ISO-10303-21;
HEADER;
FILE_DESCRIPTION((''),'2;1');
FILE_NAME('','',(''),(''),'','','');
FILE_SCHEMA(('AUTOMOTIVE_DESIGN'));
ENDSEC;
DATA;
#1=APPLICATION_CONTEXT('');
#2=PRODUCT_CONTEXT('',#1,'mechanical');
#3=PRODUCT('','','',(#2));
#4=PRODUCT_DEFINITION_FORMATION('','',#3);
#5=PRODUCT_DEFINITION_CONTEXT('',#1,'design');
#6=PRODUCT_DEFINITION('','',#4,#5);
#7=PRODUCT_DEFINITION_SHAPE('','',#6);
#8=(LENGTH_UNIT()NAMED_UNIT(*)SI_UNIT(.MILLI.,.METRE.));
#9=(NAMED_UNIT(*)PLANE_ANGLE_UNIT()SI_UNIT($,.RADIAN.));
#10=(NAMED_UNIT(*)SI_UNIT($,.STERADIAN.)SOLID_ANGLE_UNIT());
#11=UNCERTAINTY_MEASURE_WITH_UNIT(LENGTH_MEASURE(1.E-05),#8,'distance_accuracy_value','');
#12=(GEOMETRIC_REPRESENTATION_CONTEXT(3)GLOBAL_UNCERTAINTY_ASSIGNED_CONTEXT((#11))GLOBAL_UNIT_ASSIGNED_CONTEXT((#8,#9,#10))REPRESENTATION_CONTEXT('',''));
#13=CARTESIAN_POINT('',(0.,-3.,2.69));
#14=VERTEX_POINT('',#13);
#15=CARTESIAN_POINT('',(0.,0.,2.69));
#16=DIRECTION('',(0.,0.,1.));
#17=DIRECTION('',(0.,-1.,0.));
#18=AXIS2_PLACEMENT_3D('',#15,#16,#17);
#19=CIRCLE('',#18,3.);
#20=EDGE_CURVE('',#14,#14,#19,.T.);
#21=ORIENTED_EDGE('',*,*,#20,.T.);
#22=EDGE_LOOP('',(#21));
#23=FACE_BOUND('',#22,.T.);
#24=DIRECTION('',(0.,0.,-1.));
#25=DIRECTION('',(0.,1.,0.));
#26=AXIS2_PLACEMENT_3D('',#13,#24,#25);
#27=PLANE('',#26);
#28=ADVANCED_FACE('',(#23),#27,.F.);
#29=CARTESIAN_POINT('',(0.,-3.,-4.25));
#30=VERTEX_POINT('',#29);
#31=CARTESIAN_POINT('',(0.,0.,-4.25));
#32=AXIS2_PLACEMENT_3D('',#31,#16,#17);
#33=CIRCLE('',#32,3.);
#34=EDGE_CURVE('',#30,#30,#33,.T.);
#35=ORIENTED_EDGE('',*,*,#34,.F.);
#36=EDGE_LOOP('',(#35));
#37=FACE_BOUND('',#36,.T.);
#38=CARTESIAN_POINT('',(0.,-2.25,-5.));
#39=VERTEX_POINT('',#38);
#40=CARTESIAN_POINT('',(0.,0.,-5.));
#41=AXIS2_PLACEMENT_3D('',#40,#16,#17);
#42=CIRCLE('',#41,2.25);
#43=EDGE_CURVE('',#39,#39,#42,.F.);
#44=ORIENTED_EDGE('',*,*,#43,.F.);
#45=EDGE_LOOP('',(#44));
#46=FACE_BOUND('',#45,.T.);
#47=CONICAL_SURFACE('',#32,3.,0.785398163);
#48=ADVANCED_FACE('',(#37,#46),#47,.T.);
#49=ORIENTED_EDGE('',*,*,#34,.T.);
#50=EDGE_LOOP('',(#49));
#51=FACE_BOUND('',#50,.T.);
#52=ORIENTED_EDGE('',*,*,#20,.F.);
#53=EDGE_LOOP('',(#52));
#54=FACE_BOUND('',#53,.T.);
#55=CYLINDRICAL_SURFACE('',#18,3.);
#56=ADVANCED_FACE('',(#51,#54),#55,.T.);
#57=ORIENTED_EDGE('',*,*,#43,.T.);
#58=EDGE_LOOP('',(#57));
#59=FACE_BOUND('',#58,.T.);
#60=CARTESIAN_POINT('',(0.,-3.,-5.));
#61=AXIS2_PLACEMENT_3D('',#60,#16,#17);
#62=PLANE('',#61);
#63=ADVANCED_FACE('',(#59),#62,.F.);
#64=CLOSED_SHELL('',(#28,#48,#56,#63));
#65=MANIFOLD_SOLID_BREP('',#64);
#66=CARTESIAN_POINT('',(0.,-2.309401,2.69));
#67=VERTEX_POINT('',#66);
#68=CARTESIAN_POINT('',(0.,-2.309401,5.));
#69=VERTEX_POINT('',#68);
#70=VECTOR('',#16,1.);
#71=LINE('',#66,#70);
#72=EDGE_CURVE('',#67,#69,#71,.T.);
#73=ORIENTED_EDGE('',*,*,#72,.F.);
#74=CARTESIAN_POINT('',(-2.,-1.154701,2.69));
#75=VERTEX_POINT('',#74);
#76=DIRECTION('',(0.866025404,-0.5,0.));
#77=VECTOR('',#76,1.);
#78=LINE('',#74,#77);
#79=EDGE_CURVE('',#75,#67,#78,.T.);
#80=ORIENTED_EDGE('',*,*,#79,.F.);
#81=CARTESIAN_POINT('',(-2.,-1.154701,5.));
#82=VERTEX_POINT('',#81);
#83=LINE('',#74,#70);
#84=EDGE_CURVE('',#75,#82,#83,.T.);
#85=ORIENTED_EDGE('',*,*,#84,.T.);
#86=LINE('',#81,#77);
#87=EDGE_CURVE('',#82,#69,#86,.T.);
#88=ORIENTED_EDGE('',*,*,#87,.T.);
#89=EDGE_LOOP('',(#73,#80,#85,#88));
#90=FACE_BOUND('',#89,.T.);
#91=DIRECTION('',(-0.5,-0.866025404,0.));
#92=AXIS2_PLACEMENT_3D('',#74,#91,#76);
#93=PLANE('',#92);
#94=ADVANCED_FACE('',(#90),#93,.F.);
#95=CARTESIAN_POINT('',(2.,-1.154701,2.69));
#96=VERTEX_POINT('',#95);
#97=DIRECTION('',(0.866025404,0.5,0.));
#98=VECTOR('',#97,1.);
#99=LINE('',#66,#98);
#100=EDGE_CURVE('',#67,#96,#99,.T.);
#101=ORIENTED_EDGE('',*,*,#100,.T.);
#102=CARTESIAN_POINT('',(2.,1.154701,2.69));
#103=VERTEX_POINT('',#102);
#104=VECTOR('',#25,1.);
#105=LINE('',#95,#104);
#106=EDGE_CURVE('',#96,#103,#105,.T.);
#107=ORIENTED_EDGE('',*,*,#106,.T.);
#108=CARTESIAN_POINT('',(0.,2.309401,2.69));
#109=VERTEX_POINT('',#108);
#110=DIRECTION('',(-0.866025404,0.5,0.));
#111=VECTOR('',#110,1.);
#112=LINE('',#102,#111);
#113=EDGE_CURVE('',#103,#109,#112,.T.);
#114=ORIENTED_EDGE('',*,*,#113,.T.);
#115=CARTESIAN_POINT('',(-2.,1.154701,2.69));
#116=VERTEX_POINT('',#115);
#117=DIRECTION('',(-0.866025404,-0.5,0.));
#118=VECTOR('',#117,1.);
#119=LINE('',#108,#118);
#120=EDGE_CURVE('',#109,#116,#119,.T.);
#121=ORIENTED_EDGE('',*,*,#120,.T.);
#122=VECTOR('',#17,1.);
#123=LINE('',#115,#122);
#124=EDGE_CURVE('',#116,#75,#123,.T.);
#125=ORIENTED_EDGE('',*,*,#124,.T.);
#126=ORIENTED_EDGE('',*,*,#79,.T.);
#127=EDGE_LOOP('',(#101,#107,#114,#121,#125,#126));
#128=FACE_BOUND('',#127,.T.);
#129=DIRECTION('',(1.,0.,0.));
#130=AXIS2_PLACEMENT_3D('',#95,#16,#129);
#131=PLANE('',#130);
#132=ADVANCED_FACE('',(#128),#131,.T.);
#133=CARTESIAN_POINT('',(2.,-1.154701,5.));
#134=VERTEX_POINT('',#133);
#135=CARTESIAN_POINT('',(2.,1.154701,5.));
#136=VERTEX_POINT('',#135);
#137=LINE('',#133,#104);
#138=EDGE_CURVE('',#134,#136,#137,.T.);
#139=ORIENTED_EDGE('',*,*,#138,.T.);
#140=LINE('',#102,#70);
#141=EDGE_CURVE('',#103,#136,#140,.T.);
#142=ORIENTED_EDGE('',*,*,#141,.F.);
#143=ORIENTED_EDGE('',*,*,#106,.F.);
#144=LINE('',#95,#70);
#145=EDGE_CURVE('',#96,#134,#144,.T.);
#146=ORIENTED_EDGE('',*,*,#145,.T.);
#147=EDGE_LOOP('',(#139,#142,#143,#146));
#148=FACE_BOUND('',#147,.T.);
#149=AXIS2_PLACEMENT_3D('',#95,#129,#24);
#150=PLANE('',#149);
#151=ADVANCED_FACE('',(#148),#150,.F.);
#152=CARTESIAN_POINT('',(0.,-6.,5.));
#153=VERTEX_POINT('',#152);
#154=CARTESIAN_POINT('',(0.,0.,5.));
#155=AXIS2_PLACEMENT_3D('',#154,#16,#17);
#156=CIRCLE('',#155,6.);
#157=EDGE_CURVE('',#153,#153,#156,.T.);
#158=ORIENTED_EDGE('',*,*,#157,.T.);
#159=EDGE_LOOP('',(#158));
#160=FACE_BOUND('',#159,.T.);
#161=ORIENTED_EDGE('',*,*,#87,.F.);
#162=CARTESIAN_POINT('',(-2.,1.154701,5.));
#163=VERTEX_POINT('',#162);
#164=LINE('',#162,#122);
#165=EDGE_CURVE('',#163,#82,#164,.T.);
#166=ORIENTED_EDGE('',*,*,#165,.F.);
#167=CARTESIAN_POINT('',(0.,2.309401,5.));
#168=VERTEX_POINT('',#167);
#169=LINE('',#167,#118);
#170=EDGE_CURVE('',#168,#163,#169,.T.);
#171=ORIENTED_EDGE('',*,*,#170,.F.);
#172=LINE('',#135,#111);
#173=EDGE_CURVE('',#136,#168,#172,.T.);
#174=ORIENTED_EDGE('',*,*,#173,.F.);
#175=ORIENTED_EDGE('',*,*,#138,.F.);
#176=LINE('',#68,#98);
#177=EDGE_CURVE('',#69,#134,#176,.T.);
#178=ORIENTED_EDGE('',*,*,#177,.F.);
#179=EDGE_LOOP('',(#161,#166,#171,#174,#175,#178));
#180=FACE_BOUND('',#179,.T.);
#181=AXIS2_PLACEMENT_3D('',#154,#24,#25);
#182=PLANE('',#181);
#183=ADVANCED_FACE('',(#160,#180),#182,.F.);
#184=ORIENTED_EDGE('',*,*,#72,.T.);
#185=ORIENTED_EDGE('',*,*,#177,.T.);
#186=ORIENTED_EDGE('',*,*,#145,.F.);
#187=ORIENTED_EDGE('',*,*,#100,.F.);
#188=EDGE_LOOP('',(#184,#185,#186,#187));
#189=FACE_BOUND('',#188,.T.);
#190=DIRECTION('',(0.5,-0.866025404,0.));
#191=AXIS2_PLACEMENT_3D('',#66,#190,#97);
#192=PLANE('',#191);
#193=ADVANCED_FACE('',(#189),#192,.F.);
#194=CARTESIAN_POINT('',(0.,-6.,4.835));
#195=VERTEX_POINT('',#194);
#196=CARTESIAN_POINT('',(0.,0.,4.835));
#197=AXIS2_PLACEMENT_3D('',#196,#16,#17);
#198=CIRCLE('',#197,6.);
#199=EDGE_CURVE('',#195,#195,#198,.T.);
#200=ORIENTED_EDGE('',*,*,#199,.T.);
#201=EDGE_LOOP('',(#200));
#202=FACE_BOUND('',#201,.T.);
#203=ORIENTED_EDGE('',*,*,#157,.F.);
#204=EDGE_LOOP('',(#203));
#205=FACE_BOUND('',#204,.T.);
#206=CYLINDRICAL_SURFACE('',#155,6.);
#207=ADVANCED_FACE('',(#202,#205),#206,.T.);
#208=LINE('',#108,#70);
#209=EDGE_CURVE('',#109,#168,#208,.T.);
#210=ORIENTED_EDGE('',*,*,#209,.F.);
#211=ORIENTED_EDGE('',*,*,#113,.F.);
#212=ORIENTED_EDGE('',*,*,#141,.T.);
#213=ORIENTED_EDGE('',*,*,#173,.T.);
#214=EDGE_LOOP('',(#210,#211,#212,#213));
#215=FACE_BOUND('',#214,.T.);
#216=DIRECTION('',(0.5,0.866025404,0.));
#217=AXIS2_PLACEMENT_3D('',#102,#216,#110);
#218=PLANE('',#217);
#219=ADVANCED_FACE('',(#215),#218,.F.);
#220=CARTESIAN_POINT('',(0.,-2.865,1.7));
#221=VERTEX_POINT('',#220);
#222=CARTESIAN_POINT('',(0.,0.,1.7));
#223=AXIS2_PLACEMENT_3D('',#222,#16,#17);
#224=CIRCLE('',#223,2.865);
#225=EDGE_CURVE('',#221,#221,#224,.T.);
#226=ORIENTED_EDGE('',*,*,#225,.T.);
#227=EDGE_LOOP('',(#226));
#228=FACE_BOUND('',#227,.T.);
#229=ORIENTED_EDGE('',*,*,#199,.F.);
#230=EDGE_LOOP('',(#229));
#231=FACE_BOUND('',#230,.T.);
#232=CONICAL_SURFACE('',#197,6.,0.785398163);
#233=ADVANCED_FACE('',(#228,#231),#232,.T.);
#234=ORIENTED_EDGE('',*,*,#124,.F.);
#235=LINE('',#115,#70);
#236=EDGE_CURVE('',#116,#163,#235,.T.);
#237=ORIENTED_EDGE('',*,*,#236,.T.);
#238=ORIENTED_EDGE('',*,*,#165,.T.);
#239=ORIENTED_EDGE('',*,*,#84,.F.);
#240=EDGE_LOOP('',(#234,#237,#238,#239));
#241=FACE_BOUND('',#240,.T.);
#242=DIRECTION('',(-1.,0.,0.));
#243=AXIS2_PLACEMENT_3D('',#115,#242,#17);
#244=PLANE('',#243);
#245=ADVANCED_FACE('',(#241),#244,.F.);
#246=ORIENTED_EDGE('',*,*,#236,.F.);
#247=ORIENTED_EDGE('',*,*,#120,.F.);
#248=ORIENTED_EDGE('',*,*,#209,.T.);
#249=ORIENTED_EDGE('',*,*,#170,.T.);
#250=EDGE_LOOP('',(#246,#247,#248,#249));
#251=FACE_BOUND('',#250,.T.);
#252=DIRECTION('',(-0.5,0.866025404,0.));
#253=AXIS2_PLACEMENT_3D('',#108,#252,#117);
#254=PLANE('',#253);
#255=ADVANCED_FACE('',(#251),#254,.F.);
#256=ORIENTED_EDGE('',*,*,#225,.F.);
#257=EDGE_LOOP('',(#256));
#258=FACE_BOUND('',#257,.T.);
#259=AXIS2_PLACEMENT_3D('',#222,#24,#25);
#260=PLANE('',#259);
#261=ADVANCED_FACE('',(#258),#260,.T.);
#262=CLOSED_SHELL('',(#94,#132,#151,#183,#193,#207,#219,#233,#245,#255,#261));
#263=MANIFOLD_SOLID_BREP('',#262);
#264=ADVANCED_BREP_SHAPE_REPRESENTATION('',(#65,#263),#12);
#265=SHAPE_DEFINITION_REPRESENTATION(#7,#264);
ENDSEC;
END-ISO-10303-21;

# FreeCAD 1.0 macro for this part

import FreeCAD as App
import Part
import Sketcher

V = App.Vector
Q = App.Units.Quantity


def edges_at(feature, points):
    """Names of the edges that pass closest to the given points."""
    edges = feature.Shape.Edges
    near = lambda p: min(range(len(edges)), key=lambda i: edges[i].distToShape(Part.Vertex(*p))[0])
    return sorted({f"Edge{near(p) + 1}" for p in points})


def add_polygon(sketch, points):
    """Adds a closed chain of lines whose ends are joined by coincident constraints."""
    first, n = sketch.GeometryCount, len(points)
    for a, b in zip(points, points[1:] + points[:1]):
        sketch.addGeometry(Part.LineSegment(App.Vector(*a, 0), App.Vector(*b, 0)), False)
    for i in range(n):
        sketch.addConstraint(Sketcher.Constraint("Coincident", first + i, 2, first + (i + 1) % n, 1))

doc = App.newDocument("Part")
body = doc.addObject("PartDesign::Body", "Body")

sketch1 = body.newObject("Sketcher::SketchObject", "Sketch")
sketch1.AttachmentSupport = (doc.getObject("YZ_Plane"), [""])
sketch1.MapMode = "FlatFace"
add_polygon(sketch1, [(3, -5), (3, 2.69), (0, 2.69), (0, -5)])
sketch1.addConstraint([
    Sketcher.Constraint("Vertical", 0),
    Sketcher.Constraint("Horizontal", 1),
    Sketcher.Constraint("Vertical", 2),
    Sketcher.Constraint("Horizontal", 3),
    Sketcher.Constraint("PointOnObject", 1, 2, -2),
    Sketcher.Constraint("DistanceX", 1, 2, 1, 1, Q("3 mm")),
    Sketcher.Constraint("DistanceY", 2, 2, -1, 1, Q("5 mm")),
    Sketcher.Constraint("DistanceY", 0, 1, 0, 2, Q("7.69 mm")),
])
revolution = body.newObject("PartDesign::Revolution", "Revolution")
revolution.Profile = sketch1
revolution.ReferenceAxis = (sketch1, ["V_Axis"])
revolution.Angle = 360
doc.recompute()

chamfer = body.newObject("PartDesign::Chamfer", "Chamfer")
chamfer.Base = (revolution, edges_at(revolution, [(0, 3, -5)]))
chamfer.Size = 0.75
body2 = doc.addObject("PartDesign::Body", "Body001")

sketch2 = body2.newObject("Sketcher::SketchObject", "Sketch001")
sketch2.AttachmentSupport = (doc.getObject("YZ_Plane001"), [""])
sketch2.MapMode = "FlatFace"
add_polygon(sketch2, [(6, 4.835), (6, 5), (0, 5), (0, 1.7), (2.865, 1.7)])
sketch2.addConstraint([
    Sketcher.Constraint("Vertical", 0),
    Sketcher.Constraint("Horizontal", 1),
    Sketcher.Constraint("Vertical", 2),
    Sketcher.Constraint("Horizontal", 3),
    Sketcher.Constraint("PointOnObject", 1, 2, -2),
    Sketcher.Constraint("DistanceX", 1, 2, 1, 1, Q("6 mm")),
    Sketcher.Constraint("Angle", 4, Q("45 deg")),
    Sketcher.Constraint("DistanceY", 2, 2, 2, 1, Q("3.3 mm")),
    Sketcher.Constraint("DistanceY", -1, 1, 0, 2, Q("5 mm")),
    Sketcher.Constraint("DistanceX", 3, 1, 3, 2, Q("2.865 mm")),
])
revolution2 = body2.newObject("PartDesign::Revolution", "Revolution001")
revolution2.Profile = sketch2
revolution2.ReferenceAxis = (sketch2, ["V_Axis"])
revolution2.Angle = 360

sketch3 = body2.newObject("Sketcher::SketchObject", "Sketch002")
sketch3.AttachmentSupport = (doc.getObject("XY_Plane001"), [""])
sketch3.MapMode = "FlatFace"
sketch3.AttachmentOffset = App.Placement(V(0, 0, 5), App.Rotation())
add_polygon(sketch3, [(2, -1.154701), (2, 1.154701), (0, 2.309401), (-2, 1.154701), (-2, -1.154701), (0, -2.309401)])
sketch3.addConstraint([
    Sketcher.Constraint("Vertical", 0),
    Sketcher.Constraint("Vertical", 3),
    Sketcher.Constraint("Symmetric", 0, 2, 3, 2, -1, 1),
    Sketcher.Constraint("Symmetric", 1, 2, 4, 2, -1, 1),
    Sketcher.Constraint("PointOnObject", 1, 2, -2),
    Sketcher.Constraint("Parallel", 2, 5),
    Sketcher.Constraint("Horizontal", 0, 2, 2, 2),
    Sketcher.Constraint("Angle", 1, Q("150 deg")),
    Sketcher.Constraint("DistanceX", -1, 1, 0, 2, Q("2 mm")),
    Sketcher.Constraint("DistanceY", 0, 1, 0, 2, Q("2.309401 mm")),
])
pocket1 = body2.newObject("PartDesign::Pocket", "Pocket")
pocket1.Profile = sketch3
pocket1.Length = 2.31

doc.recompute()
